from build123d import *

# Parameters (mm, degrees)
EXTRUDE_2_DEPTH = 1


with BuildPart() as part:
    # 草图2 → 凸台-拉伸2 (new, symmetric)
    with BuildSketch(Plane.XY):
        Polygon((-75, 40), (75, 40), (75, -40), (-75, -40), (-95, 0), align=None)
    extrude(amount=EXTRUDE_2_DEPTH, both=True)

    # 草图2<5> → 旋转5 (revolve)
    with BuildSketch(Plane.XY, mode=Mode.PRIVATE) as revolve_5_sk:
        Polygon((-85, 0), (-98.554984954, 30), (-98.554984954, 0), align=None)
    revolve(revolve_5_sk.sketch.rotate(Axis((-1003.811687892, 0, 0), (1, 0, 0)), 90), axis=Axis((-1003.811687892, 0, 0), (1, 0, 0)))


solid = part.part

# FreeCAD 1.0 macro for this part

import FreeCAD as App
import Part
import Sketcher

V = App.Vector

doc = App.newDocument("Part")
body = doc.addObject("PartDesign::Body", "Body")

# Sketch on XY plane
sketch1 = doc.addObject("Sketcher::SketchObject", "Sketch")
body.addObject(sketch1)
sketch1.AttachmentSupport = (doc.XY_Plane, [""])
sketch1.MapMode = "FlatFace"
sketch1.addGeometry([
    Part.LineSegment(V(75, 40, 0), V(-75, 40, 0)),  # 0
    Part.LineSegment(V(-75, 40, 0), V(-95, 0, 0)),  # 1
    Part.LineSegment(V(-95, 0, 0), V(-75, -40, 0)),  # 2
    Part.LineSegment(V(-75, -40, 0), V(75, -40, 0)),  # 3
    Part.LineSegment(V(75, -40, 0), V(75, 40, 0)),  # 4
], False)
sketch1.addConstraint([
    Sketcher.Constraint("Coincident", 0, 2, 1, 1),
    Sketcher.Constraint("Coincident", 1, 2, 2, 1),
    Sketcher.Constraint("Coincident", 2, 2, 3, 1),
    Sketcher.Constraint("Coincident", 3, 2, 4, 1),
    Sketcher.Constraint("Coincident", 4, 2, 0, 1),
    Sketcher.Constraint("Horizontal", 0),
    Sketcher.Constraint("Horizontal", 3),
    Sketcher.Constraint("Vertical", 4),
    Sketcher.Constraint("Symmetric", 0, 2, 3, 2, -1, 1),
    Sketcher.Constraint("PointOnObject", 1, 2, -1),
    Sketcher.Constraint("Vertical", 0, 2, 2, 2),
    Sketcher.Constraint("DistanceX", 0, 2, 0, 1, 150.0),
    Sketcher.Constraint("DistanceY", 4, 1, 4, 2, 80.0),
    Sketcher.Constraint("DistanceX", 1, 2, -1, 1, 95.0),
])
pad1 = doc.addObject("PartDesign::Pad", "Pad")
body.addObject(pad1)
pad1.Profile = sketch1
pad1.Length = 2
pad1.Midplane = True

# Sketch on XY plane
sketch2 = doc.addObject("Sketcher::SketchObject", "Sketch001")
body.addObject(sketch2)
sketch2.AttachmentSupport = (doc.XY_Plane, [""])
sketch2.MapMode = "FlatFace"
sketch2.addGeometry([
    Part.LineSegment(V(-85, 0, 0), V(-99, 30, 0)),
    Part.LineSegment(V(-99, 30, 0), V(-99, 0, 0)),
    Part.LineSegment(V(-99, 0, 0), V(-85, 0, 0)),
], False)
sketch2.addConstraint([
    Sketcher.Constraint("Coincident", 0, 2, 1, 1),
    Sketcher.Constraint("Coincident", 1, 2, 2, 1),
    Sketcher.Constraint("Coincident", 2, 2, 0, 1),
    Sketcher.Constraint("Vertical", 1),
    Sketcher.Constraint("Horizontal", 2),
    Sketcher.Constraint("PointOnObject", 1, 2, -1),
    Sketcher.Constraint("DistanceY", 1, 2, 1, 1, 30.0),
    Sketcher.Constraint("DistanceX", 2, 2, -1, 1, 85.0),
    Sketcher.Constraint("Distance", 0, 32.92017),
])
revolution = doc.addObject("PartDesign::Revolution", "Revolution")
body.addObject(revolution)
revolution.Profile = sketch2
revolution.ReferenceAxis = (sketch2, ["H_Axis"])
revolution.Angle = 360

doc.recompute()
